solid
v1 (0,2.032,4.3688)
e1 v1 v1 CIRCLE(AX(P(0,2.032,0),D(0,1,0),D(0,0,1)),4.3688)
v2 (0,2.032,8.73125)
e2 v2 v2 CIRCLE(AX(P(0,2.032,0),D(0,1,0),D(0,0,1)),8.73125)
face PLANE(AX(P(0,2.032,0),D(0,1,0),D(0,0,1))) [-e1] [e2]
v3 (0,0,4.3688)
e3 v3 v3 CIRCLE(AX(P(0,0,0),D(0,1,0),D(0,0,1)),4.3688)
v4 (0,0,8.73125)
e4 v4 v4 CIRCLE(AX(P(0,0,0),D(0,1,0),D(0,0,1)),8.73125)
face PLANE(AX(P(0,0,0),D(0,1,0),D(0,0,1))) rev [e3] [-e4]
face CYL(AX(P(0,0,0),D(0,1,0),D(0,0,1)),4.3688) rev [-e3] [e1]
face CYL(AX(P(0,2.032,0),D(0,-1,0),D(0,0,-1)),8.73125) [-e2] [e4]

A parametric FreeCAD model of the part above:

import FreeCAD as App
import Part
import Sketcher
Q = App.Units.Quantity

doc = App.newDocument("Part")
params = doc.addObject("Spreadsheet::Sheet", "Params")
for row, (alias, value) in enumerate([
    ("sketch1_diameter", "0.6875 in"),
    ("pad1_length", "0.08 in"),
    ("sketch2_diameter", "0.344 in"),
], start=1):
    params.set(f"A{row}", alias)
    params.set(f"B{row}", "=" + value)
    params.setAlias(f"B{row}", alias)

body = doc.addObject("PartDesign::Body", "Body")

sketch1 = body.newObject("Sketcher::SketchObject", "Sketch")
sketch1.AttachmentSupport = (doc.getObject("XZ_Plane"), [""])
sketch1.MapMode = "FlatFace"
sketch1.addGeometry(Part.Circle(App.Vector(0, 0, 0), App.Vector(0, 0, 1), 8.73125), False)
sketch1.addConstraint([
    Sketcher.Constraint("Coincident", 0, 3, -1, 1),
    Sketcher.Constraint("Diameter", 0, Q("0.6875 in")),
])
sketch1.setExpression("Constraints[1]", "Params.sketch1_diameter")
pad1 = body.newObject("PartDesign::Pad", "Pad")
pad1.Profile = sketch1
pad1.setExpression("Length", "Params.pad1_length")
pad1.Reversed = True

sketch2 = body.newObject("Sketcher::SketchObject", "Sketch001")
sketch2.AttachmentSupport = (doc.getObject("XZ_Plane"), [""])
sketch2.MapMode = "FlatFace"
sketch2.AttachmentOffset = App.Placement(App.Vector(0, 0, -0.08 * 25.4), App.Rotation())
sketch2.addGeometry(Part.Circle(App.Vector(0, 0, 0), App.Vector(0, 0, 1), 4.3688), False)
sketch2.addConstraint([
    Sketcher.Constraint("Coincident", 0, 3, -1, 1),
    Sketcher.Constraint("Diameter", 0, Q("0.344 in")),
])
sketch2.setExpression("Constraints[1]", "Params.sketch2_diameter")
pocket1 = body.newObject("PartDesign::Pocket", "Pocket")
pocket1.Profile = sketch2
pocket1.Type = "ThroughAll"
pocket1.Reversed = True

doc.recompute()
